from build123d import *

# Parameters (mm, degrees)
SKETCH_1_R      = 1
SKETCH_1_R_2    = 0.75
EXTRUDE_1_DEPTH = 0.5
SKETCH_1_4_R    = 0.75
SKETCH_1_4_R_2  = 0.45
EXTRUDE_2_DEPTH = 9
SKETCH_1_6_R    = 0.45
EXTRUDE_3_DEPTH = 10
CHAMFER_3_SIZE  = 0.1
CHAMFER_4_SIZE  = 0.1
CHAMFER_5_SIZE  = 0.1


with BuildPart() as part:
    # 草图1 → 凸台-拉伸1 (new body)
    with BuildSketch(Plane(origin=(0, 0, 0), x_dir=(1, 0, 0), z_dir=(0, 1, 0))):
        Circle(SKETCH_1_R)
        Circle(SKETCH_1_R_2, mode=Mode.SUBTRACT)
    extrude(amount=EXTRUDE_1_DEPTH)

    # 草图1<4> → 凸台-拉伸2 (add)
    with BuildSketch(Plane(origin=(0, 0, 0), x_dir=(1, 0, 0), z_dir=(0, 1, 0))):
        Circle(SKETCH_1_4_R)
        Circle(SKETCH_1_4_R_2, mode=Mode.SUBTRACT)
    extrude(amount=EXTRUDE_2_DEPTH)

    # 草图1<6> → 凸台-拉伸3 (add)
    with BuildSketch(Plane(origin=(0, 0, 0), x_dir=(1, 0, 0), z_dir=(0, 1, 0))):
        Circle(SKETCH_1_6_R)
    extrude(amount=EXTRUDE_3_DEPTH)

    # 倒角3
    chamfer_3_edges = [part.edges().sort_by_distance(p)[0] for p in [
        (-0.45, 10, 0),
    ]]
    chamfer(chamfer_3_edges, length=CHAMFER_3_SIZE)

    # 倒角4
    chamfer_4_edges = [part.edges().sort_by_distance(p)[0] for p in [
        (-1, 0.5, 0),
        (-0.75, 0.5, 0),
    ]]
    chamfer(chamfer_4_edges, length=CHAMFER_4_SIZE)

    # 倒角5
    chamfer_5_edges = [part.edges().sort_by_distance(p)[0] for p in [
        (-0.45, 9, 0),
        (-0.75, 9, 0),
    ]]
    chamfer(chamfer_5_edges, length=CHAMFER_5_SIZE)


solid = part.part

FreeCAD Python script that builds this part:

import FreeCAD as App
import Part
import Sketcher


def edges_at(feature, points):
    """Names of the edges that pass closest to the given points."""
    edges = feature.Shape.Edges
    near = lambda p: min(range(len(edges)), key=lambda i: edges[i].distToShape(Part.Vertex(*p))[0])
    return sorted({f"Edge{near(p) + 1}" for p in points})

doc = App.newDocument("Part")
body = doc.addObject("PartDesign::Body", "Body")

# Sketch on XZ plane
sketch1 = body.newObject("Sketcher::SketchObject", "Sketch")
sketch1.AttachmentSupport = (doc.getObject("XZ_Plane"), [""])
sketch1.MapMode = "FlatFace"
sketch1.addGeometry([
    Part.Circle(App.Vector(0, 0, 0), App.Vector(0, 0, 1), 1),
    Part.Circle(App.Vector(0, 0, 0), App.Vector(0, 0, 1), 0.8),
], False)
sketch1.addConstraint([
    Sketcher.Constraint("Coincident", 0, 3, -1, 1),
    Sketcher.Constraint("Coincident", 1, 3, -1, 1),
    Sketcher.Constraint("Diameter", 0, 2.0),
    Sketcher.Constraint("Diameter", 1, 1.5),
])
pad1 = body.newObject("PartDesign::Pad", "Pad")
pad1.Profile = sketch1
pad1.Length = 0.5
pad1.Reversed = True

# Sketch on XZ plane
sketch2 = body.newObject("Sketcher::SketchObject", "Sketch001")
sketch2.AttachmentSupport = (doc.getObject("XZ_Plane"), [""])
sketch2.MapMode = "FlatFace"
sketch2.addGeometry([
    Part.Circle(App.Vector(0, 0, 0), App.Vector(0, 0, 1), 0.75),
    Part.Circle(App.Vector(0, 0, 0), App.Vector(0, 0, 1), 0.45),
], False)
sketch2.addConstraint([
    Sketcher.Constraint("Coincident", 0, 3, -1, 1),
    Sketcher.Constraint("Coincident", 1, 3, -1, 1),
    Sketcher.Constraint("Diameter", 0, 1.5),
    Sketcher.Constraint("Diameter", 1, 0.9),
])
pad2 = body.newObject("PartDesign::Pad", "Pad001")
pad2.Profile = sketch2
pad2.Length = 9
pad2.Reversed = True

# Sketch on XZ plane
sketch3 = body.newObject("Sketcher::SketchObject", "Sketch002")
sketch3.AttachmentSupport = (doc.getObject("XZ_Plane"), [""])
sketch3.MapMode = "FlatFace"
sketch3.addGeometry(Part.Circle(App.Vector(0, 0, 0), App.Vector(0, 0, 1), 0.45), False)
sketch3.addConstraint([
    Sketcher.Constraint("Coincident", 0, 3, -1, 1),
    Sketcher.Constraint("Diameter", 0, 0.9),
])
pad3 = body.newObject("PartDesign::Pad", "Pad002")
pad3.Profile = sketch3
pad3.Length = 10
pad3.Reversed = True
doc.recompute()

chamfer = body.newObject("PartDesign::Chamfer", "Chamfer")
chamfer.Base = (pad3, edges_at(pad3, [(-0.45, 10, 0)]))
chamfer.Size = 0.1
doc.recompute()

chamfer2 = body.newObject("PartDesign::Chamfer", "Chamfer001")
chamfer2.Base = (chamfer, edges_at(chamfer, [(-1, 0.5, 0), (-0.75, 0.5, 0)]))
chamfer2.Size = 0.1
doc.recompute()

chamfer3 = body.newObject("PartDesign::Chamfer", "Chamfer002")
chamfer3.Base = (chamfer2, edges_at(chamfer2, [(-0.45, 9, 0), (-0.75, 9, 0)]))
chamfer3.Size = 0.1

doc.recompute()
